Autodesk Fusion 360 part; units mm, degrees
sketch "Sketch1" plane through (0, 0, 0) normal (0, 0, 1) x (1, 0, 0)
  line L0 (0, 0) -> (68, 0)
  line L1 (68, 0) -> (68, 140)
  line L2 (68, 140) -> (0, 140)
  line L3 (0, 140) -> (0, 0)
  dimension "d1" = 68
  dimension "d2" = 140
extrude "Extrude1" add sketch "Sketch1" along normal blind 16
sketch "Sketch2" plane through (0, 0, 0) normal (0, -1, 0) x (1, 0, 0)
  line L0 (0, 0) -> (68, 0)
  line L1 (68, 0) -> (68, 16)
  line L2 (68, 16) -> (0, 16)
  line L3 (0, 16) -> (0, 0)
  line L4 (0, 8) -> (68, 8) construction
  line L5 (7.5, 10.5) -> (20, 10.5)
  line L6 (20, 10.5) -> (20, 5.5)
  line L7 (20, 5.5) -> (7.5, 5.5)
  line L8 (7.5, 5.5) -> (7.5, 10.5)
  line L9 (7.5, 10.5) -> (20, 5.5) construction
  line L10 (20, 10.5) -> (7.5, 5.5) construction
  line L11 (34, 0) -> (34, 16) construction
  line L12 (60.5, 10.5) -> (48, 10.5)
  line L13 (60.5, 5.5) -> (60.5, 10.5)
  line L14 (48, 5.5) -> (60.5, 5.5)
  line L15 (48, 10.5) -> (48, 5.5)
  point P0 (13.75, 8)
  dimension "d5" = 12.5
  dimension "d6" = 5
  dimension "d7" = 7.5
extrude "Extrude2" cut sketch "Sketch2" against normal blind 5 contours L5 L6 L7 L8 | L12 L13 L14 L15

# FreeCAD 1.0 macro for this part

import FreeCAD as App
import Part
import Sketcher

V = App.Vector
Q = App.Units.Quantity


def add_polygon(sketch, points):
    """Adds a closed chain of lines whose ends are joined by coincident constraints."""
    first, n = sketch.GeometryCount, len(points)
    for a, b in zip(points, points[1:] + points[:1]):
        sketch.addGeometry(Part.LineSegment(App.Vector(*a, 0), App.Vector(*b, 0)), False)
    for i in range(n):
        sketch.addConstraint(Sketcher.Constraint("Coincident", first + i, 2, first + (i + 1) % n, 1))

doc = App.newDocument("Part")
body = doc.addObject("PartDesign::Body", "Body")

sketch1 = body.newObject("Sketcher::SketchObject", "Sketch")
sketch1.AttachmentSupport = (doc.getObject("XY_Plane"), [""])
sketch1.MapMode = "FlatFace"
add_polygon(sketch1, [(0, 140), (0, 0), (68, 0), (68, 140)])
sketch1.addConstraint([
    Sketcher.Constraint("Vertical", 0),
    Sketcher.Constraint("Horizontal", 1),
    Sketcher.Constraint("Vertical", 2),
    Sketcher.Constraint("Horizontal", 3),
    Sketcher.Constraint("Coincident", 0, 2, -1, 1),
    Sketcher.Constraint("DistanceX", 1, 1, 1, 2, Q("68 mm")),
    Sketcher.Constraint("DistanceY", 0, 2, 0, 1, Q("140 mm")),
])
pad1 = body.newObject("PartDesign::Pad", "Pad")
pad1.Profile = sketch1
pad1.Length = 16

sketch2 = body.newObject("Sketcher::SketchObject", "Sketch001")
sketch2.AttachmentSupport = (doc.getObject("XZ_Plane"), [""])
sketch2.MapMode = "FlatFace"
add_polygon(sketch2, [(20, 10), (8, 10), (8, 6), (20, 6)])
add_polygon(sketch2, [(60, 6), (60, 10), (48, 10), (48, 6)])
sketch2.addConstraint([
    Sketcher.Constraint("Horizontal", 0),
    Sketcher.Constraint("Vertical", 1),
    Sketcher.Constraint("Horizontal", 2),
    Sketcher.Constraint("Vertical", 3),
    Sketcher.Constraint("Vertical", 4),
    Sketcher.Constraint("Horizontal", 5),
    Sketcher.Constraint("Vertical", 6),
    Sketcher.Constraint("Horizontal", 7),
    Sketcher.Constraint("Horizontal", 3, 2, 4, 2),
    Sketcher.Constraint("Horizontal", 2, 2, 6, 2),
    Sketcher.Constraint("Equal", 2, 5),
    Sketcher.Constraint("DistanceY", 1, 2, 1, 1, Q("5 mm")),
    Sketcher.Constraint("DistanceX", 0, 2, 0, 1, Q("12.5 mm")),
    Sketcher.Constraint("DistanceX", -1, 1, 0, 2, Q("7.5 mm")),
    Sketcher.Constraint("DistanceX", -1, 1, 5, 2, Q("48 mm")),
    Sketcher.Constraint("DistanceY", -1, 1, 0, 2, Q("10.5 mm")),
])
pocket1 = body.newObject("PartDesign::Pocket", "Pocket")
pocket1.Profile = sketch2
pocket1.Length = 5

doc.recompute()
